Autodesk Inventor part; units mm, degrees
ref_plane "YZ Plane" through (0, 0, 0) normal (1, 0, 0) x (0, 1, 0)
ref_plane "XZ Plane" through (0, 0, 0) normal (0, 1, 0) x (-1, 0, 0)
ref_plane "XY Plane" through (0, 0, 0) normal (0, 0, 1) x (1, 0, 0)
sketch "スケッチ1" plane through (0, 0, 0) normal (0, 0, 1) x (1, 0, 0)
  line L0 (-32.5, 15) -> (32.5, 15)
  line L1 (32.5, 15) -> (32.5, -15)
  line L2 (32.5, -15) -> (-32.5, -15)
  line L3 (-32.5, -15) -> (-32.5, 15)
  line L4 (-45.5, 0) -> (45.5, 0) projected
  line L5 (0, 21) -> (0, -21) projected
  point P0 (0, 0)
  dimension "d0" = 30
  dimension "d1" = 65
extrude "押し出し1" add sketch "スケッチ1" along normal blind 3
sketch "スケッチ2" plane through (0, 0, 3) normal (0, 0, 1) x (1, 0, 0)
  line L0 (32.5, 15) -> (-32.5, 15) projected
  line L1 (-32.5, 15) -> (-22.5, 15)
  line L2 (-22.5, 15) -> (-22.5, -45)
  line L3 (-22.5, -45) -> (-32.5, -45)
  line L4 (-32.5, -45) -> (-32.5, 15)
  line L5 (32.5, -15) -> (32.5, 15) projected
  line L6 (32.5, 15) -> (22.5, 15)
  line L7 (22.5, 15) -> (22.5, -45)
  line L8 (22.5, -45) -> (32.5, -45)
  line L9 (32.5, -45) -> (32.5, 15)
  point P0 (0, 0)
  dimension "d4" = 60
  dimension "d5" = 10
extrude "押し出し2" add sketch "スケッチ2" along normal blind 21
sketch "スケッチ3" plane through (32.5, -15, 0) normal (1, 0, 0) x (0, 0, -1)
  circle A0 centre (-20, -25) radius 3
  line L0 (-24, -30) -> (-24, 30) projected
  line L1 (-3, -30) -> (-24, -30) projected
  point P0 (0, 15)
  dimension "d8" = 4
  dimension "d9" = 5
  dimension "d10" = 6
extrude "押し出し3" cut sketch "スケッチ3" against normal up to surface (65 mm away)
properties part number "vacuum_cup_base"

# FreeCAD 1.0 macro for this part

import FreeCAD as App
import Part
import Sketcher


def add_polygon(sketch, points):
    """Adds a closed chain of lines whose ends are joined by coincident constraints."""
    first, n = sketch.GeometryCount, len(points)
    for a, b in zip(points, points[1:] + points[:1]):
        sketch.addGeometry(Part.LineSegment(App.Vector(*a, 0), App.Vector(*b, 0)), False)
    for i in range(n):
        sketch.addConstraint(Sketcher.Constraint("Coincident", first + i, 2, first + (i + 1) % n, 1))

doc = App.newDocument("Part")
body = doc.addObject("PartDesign::Body", "Body")

# Sketch on XY plane
sketch1 = body.newObject("Sketcher::SketchObject", "Sketch")
sketch1.AttachmentSupport = (doc.getObject("XY_Plane"), [""])
sketch1.MapMode = "FlatFace"
add_polygon(sketch1, [(-32.5, 15), (-32.5, -15), (32.5, -15), (32.5, 15)])  # lines 0-3
sketch1.addConstraint([
    Sketcher.Constraint("Vertical", 0),
    Sketcher.Constraint("Horizontal", 1),
    Sketcher.Constraint("Vertical", 2),
    Sketcher.Constraint("Horizontal", 3),
    Sketcher.Constraint("Symmetric", 0, 2, 2, 2, -1, 1),
    Sketcher.Constraint("DistanceX", 1, 1, 1, 2, 65.0),
    Sketcher.Constraint("DistanceY", 0, 2, 0, 1, 30.0),
])
pad1 = body.newObject("PartDesign::Pad", "Pad")
pad1.Profile = sketch1
pad1.Length = 3

# Sketch on XY plane
sketch2 = body.newObject("Sketcher::SketchObject", "Sketch001")
sketch2.AttachmentSupport = (doc.getObject("XY_Plane"), [""])
sketch2.MapMode = "FlatFace"
sketch2.AttachmentOffset = App.Placement(App.Vector(0, 0, 3), App.Rotation())
add_polygon(sketch2, [(32.5, -45), (32.5, 15), (22.5, 15), (22.5, -45)])  # lines 0-3
add_polygon(sketch2, [(-22.5, -45), (-22.5, 15), (-32.5, 15), (-32.5, -45)])  # lines 4-7
sketch2.addConstraint([
    Sketcher.Constraint("Vertical", 0),
    Sketcher.Constraint("Horizontal", 1),
    Sketcher.Constraint("Vertical", 2),
    Sketcher.Constraint("Horizontal", 3),
    Sketcher.Constraint("Vertical", 4),
    Sketcher.Constraint("Horizontal", 5),
    Sketcher.Constraint("Vertical", 6),
    Sketcher.Constraint("Horizontal", 7),
    Sketcher.Constraint("Symmetric", 1, 2, 4, 2, -2),
    Sketcher.Constraint("Symmetric", 3, 2, 6, 2, -2),
    Sketcher.Constraint("DistanceX", 1, 2, 1, 1, 10.0),
    Sketcher.Constraint("DistanceY", 0, 1, 0, 2, 60.0),
    Sketcher.Constraint("DistanceY", -1, 1, 0, 2, 15.0),
    Sketcher.Constraint("DistanceX", 4, 2, 1, 2, 45.0),
])
pad2 = body.newObject("PartDesign::Pad", "Pad001")
pad2.Profile = sketch2
pad2.Length = 21

# Sketch on YZ plane
sketch3 = body.newObject("Sketcher::SketchObject", "Sketch002")
sketch3.AttachmentSupport = (doc.getObject("YZ_Plane"), [""])
sketch3.MapMode = "FlatFace"
sketch3.AttachmentOffset = App.Placement(App.Vector(0, 0, 32.5), App.Rotation())
sketch3.addGeometry(Part.Circle(App.Vector(-40, 20, 0), App.Vector(0, 0, 1), 3), False)
sketch3.addConstraint([
    Sketcher.Constraint("Diameter", 0, 6.0),
    Sketcher.Constraint("DistanceX", 0, 3, -1, 1, 40.0),
    Sketcher.Constraint("DistanceY", -1, 1, 0, 3, 20.0),
])
pocket1 = body.newObject("PartDesign::Pocket", "Pocket")
pocket1.Profile = sketch3
pocket1.Length = 65

doc.recompute()
